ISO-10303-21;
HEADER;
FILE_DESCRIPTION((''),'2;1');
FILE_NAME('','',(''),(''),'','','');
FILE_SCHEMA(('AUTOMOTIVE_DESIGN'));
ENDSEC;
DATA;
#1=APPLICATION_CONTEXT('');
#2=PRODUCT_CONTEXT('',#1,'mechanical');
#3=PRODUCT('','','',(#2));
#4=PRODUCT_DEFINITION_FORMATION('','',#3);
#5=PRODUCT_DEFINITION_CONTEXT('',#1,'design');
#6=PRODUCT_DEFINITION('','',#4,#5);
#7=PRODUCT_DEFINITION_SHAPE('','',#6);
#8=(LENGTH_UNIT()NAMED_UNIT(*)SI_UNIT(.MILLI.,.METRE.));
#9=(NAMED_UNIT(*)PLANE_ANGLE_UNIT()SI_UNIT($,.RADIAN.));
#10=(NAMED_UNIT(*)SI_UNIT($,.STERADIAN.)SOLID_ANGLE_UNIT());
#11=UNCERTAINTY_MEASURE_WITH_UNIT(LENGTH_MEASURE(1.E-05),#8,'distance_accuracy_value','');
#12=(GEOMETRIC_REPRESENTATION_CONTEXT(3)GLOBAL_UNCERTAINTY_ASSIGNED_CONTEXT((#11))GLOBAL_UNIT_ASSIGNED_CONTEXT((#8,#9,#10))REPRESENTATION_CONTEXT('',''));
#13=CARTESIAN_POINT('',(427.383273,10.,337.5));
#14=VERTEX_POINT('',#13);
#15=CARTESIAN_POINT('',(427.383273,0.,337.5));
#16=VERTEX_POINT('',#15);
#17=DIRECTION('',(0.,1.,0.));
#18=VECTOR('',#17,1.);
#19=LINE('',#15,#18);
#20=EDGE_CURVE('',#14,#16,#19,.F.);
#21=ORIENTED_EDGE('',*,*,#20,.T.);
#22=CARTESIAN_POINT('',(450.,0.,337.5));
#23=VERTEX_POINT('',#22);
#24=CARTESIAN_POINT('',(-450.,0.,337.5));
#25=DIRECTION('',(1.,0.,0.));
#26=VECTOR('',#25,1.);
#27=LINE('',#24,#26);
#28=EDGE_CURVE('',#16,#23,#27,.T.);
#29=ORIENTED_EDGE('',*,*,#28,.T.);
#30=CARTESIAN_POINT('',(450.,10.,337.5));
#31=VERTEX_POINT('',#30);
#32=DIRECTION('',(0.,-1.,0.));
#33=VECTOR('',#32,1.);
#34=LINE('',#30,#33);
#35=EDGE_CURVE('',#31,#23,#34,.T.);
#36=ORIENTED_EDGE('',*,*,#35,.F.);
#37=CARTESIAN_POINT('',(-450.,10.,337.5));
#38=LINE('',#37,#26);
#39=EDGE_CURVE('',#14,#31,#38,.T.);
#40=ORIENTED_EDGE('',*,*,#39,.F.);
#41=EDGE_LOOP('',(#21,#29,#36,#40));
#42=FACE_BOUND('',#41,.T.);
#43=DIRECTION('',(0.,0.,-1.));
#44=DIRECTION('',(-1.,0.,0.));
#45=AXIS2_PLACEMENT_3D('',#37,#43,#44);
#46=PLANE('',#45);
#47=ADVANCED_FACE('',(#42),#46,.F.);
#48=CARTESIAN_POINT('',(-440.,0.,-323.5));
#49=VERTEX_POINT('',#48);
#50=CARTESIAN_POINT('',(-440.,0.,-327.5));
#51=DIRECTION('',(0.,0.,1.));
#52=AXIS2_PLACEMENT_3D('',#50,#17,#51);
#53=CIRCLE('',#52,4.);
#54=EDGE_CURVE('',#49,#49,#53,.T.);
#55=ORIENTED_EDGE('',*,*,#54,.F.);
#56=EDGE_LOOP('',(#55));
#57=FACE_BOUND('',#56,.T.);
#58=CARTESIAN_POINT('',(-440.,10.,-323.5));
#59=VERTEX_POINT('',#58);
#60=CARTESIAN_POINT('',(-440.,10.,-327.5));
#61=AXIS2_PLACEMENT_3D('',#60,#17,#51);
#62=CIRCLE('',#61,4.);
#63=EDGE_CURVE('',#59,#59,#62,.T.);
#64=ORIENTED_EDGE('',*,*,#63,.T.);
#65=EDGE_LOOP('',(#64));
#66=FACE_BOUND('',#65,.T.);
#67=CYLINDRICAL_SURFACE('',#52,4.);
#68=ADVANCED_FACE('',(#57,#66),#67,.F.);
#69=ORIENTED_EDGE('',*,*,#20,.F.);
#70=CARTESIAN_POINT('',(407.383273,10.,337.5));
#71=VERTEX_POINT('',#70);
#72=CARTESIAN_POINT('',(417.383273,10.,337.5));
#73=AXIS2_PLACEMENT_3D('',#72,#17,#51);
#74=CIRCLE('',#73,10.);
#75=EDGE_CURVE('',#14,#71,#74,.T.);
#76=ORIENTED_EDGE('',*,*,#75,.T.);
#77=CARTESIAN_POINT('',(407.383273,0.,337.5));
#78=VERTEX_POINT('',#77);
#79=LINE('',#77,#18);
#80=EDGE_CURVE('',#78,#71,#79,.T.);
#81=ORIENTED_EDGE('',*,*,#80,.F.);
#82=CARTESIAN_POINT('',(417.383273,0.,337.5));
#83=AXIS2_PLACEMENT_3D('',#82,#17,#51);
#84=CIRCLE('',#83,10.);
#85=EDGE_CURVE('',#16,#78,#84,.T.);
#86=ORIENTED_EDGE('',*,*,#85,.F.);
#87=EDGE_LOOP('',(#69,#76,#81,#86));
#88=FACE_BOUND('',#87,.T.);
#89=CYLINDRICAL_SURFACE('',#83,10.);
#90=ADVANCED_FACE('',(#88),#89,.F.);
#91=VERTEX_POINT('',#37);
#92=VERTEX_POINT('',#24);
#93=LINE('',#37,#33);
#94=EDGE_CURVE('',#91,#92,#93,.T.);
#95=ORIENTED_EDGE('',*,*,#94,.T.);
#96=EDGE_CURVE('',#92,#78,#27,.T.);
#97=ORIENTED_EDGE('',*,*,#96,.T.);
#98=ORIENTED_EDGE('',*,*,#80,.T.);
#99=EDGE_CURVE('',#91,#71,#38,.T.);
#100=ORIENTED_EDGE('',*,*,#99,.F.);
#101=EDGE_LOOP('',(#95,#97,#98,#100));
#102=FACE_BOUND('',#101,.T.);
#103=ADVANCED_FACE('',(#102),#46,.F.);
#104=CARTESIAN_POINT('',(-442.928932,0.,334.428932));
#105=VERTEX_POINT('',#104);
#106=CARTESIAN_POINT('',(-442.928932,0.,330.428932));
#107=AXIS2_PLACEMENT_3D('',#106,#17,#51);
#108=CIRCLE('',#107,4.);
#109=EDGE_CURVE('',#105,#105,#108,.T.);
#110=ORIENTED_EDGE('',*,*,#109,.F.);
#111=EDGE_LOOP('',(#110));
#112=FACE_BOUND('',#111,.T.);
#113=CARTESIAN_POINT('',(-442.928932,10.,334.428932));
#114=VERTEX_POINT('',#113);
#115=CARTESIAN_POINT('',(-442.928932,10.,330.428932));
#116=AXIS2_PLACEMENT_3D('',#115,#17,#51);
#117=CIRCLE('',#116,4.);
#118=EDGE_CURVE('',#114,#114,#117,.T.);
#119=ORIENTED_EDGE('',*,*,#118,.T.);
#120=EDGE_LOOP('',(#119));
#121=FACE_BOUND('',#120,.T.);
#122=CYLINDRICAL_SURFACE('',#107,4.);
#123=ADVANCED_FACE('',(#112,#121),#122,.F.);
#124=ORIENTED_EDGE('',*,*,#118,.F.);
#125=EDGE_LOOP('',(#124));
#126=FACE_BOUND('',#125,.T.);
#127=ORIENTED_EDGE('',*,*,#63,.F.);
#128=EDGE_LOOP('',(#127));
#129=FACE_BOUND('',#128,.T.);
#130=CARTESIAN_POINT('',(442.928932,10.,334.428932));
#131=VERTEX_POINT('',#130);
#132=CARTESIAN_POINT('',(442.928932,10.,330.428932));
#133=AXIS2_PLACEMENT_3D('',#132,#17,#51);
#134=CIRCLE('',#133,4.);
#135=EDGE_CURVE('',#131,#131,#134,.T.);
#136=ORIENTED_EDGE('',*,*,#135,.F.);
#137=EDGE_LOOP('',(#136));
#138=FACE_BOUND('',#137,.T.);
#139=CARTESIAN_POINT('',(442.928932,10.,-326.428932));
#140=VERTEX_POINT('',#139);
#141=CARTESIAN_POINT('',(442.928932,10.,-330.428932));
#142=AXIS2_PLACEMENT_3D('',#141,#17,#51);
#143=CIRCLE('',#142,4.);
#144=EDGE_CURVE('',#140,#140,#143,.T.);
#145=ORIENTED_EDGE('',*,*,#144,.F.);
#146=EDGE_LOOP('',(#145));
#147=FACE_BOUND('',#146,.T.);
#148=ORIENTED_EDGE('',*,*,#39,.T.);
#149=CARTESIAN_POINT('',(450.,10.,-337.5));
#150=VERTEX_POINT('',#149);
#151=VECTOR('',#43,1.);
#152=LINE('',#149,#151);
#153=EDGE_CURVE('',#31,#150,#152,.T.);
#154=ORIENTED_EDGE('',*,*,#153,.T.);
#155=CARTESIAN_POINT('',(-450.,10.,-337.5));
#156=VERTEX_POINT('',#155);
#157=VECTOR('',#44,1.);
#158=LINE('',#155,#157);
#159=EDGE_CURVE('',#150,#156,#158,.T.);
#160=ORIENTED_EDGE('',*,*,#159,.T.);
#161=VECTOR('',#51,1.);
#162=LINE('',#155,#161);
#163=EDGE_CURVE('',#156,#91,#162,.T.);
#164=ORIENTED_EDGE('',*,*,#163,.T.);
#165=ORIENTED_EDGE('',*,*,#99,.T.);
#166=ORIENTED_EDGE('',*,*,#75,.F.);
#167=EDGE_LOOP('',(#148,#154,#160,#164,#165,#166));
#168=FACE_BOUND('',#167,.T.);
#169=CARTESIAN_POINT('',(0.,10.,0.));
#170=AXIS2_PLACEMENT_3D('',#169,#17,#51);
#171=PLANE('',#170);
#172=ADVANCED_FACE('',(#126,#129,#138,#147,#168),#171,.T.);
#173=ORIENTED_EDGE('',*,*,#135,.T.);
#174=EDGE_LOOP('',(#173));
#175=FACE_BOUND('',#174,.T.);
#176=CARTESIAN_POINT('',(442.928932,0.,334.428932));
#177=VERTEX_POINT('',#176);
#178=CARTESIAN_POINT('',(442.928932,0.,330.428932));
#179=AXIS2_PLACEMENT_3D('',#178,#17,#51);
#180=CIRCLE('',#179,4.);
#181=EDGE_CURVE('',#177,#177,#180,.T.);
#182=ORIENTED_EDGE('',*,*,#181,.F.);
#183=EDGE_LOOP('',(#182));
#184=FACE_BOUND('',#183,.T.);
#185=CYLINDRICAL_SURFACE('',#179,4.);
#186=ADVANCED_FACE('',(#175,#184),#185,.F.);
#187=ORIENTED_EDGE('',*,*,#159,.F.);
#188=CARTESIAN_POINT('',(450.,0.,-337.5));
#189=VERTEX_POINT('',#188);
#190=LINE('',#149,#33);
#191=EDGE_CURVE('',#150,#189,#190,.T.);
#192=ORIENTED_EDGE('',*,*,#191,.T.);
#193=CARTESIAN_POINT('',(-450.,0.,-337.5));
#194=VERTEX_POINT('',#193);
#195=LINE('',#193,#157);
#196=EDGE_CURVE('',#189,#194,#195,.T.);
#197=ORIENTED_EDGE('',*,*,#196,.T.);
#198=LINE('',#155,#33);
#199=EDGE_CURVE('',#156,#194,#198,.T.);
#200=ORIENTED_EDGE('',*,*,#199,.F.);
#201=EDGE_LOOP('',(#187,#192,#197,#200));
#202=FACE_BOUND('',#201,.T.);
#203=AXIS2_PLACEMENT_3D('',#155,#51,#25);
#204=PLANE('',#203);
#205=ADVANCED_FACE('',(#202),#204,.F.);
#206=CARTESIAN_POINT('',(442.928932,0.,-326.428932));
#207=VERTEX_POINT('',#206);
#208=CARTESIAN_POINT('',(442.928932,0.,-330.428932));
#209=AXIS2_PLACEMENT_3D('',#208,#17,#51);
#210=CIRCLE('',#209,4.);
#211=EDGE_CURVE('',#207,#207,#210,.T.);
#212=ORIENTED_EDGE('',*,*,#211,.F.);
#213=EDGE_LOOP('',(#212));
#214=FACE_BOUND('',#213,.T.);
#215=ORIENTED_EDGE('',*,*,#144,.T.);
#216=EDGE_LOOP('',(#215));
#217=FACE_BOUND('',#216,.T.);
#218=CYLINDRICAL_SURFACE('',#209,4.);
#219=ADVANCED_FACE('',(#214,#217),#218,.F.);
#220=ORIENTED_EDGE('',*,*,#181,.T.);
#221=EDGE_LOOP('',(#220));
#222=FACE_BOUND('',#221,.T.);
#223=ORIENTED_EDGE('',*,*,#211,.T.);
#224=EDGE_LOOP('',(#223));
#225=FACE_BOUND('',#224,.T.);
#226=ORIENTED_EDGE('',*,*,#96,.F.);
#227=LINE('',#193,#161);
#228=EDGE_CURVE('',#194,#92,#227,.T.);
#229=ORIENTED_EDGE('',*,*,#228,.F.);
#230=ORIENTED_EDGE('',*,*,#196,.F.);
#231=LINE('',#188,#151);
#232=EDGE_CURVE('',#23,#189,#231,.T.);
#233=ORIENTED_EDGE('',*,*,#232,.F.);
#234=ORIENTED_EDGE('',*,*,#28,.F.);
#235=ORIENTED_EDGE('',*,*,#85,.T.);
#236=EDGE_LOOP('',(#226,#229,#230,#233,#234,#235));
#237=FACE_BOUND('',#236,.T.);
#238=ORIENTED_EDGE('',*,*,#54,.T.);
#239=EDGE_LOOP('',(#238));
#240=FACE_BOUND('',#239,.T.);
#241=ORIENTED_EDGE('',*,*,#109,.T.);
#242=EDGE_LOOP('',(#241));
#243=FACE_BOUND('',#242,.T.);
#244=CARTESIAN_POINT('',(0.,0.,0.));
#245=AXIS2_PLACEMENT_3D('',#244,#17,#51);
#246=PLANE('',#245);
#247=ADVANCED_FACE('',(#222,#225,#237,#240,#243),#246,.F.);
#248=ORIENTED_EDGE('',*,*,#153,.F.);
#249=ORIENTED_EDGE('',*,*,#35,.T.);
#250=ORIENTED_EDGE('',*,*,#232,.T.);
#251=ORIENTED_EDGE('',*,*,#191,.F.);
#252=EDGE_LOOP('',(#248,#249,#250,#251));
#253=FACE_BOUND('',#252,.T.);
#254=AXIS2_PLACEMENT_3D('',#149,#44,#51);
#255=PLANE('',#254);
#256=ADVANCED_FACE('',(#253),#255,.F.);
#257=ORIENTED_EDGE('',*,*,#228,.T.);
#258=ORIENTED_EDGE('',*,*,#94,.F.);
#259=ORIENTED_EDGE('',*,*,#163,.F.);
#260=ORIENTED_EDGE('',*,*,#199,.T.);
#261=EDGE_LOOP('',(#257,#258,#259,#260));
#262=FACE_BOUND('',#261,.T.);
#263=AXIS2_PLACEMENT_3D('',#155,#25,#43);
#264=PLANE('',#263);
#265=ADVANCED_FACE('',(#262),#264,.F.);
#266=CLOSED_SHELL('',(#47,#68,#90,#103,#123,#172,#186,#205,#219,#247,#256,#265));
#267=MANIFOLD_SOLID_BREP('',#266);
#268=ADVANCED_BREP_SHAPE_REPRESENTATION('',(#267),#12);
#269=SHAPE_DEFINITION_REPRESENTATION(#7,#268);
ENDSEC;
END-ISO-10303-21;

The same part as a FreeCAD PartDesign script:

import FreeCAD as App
import Part
import Sketcher

doc = App.newDocument("Part")
body = doc.addObject("PartDesign::Body", "Body")

sketch1 = doc.addObject("Sketcher::SketchObject", "Sketch")
body.addObject(sketch1)
sketch1.AttachmentSupport = (doc.XZ_Plane, [""])
sketch1.MapMode = "FlatFace"
sketch1.addGeometry(Part.LineSegment(App.Vector(-450, -338, 0), App.Vector(-450, 338, 0)), False)
sketch1.addGeometry(Part.LineSegment(App.Vector(-450, 338, 0), App.Vector(450, 338, 0)), False)
sketch1.addGeometry(Part.LineSegment(App.Vector(450, 338, 0), App.Vector(450, -338, 0)), False)
sketch1.addGeometry(Part.LineSegment(App.Vector(450, -338, 0), App.Vector(-450, -338, 0)), False)
sketch1.addConstraint(Sketcher.Constraint("Coincident", 0, 2, 1, 1))
sketch1.addConstraint(Sketcher.Constraint("Coincident", 1, 2, 2, 1))
sketch1.addConstraint(Sketcher.Constraint("Coincident", 2, 2, 3, 1))
sketch1.addConstraint(Sketcher.Constraint("Coincident", 3, 2, 0, 1))
sketch1.addConstraint(Sketcher.Constraint("Vertical", 0))
sketch1.addConstraint(Sketcher.Constraint("Horizontal", 1))
sketch1.addConstraint(Sketcher.Constraint("Vertical", 2))
sketch1.addConstraint(Sketcher.Constraint("Horizontal", 3))
sketch1.addConstraint(Sketcher.Constraint("Symmetric", 0, 2, 2, 2, -1, 1))
sketch1.addConstraint(Sketcher.Constraint("DistanceX", 1, 1, 1, 2, 900.0))
sketch1.addConstraint(Sketcher.Constraint("DistanceY", 0, 1, 0, 2, 675.0))
pad1 = doc.addObject("PartDesign::Pad", "Pad")
body.addObject(pad1)
pad1.Profile = sketch1
pad1.Length = 10
pad1.Reversed = True

sketch2 = doc.addObject("Sketcher::SketchObject", "Sketch001")
body.addObject(sketch2)
sketch2.AttachmentSupport = (doc.XZ_Plane, [""])
sketch2.MapMode = "FlatFace"
sketch2.AttachmentOffset = App.Placement(App.Vector(0, 0, -10), App.Rotation())
sketch2.addGeometry(Part.Circle(App.Vector(-440, -327.5, 0), App.Vector(0, 0, 1), 4), False)
sketch2.addConstraint(Sketcher.Constraint("Diameter", 0, 8.0))
sketch2.addConstraint(Sketcher.Constraint("DistanceX", 0, 3, -1, 1, 440.0))
sketch2.addConstraint(Sketcher.Constraint("DistanceY", 0, 3, -1, 1, 327.5))
pocket1 = doc.addObject("PartDesign::Pocket", "Pocket")
body.addObject(pocket1)
pocket1.Profile = sketch2
pocket1.Length = 10
pocket1.Reversed = True

sketch3 = doc.addObject("Sketcher::SketchObject", "Sketch002")
body.addObject(sketch3)
sketch3.AttachmentSupport = (doc.XZ_Plane, [""])
sketch3.MapMode = "FlatFace"
sketch3.AttachmentOffset = App.Placement(App.Vector(0, 0, -10), App.Rotation())
sketch3.addGeometry(Part.Circle(App.Vector(-442.9, 330.4, 0), App.Vector(0, 0, 1), 4), False)
sketch3.addConstraint(Sketcher.Constraint("Diameter", 0, 8.0))
sketch3.addConstraint(Sketcher.Constraint("DistanceX", 0, 3, -1, 1, 442.928932))
sketch3.addConstraint(Sketcher.Constraint("DistanceY", -1, 1, 0, 3, 330.428932))
pocket2 = doc.addObject("PartDesign::Pocket", "Pocket001")
body.addObject(pocket2)
pocket2.Profile = sketch3
pocket2.Length = 10
pocket2.Reversed = True

sketch4 = doc.addObject("Sketcher::SketchObject", "Sketch003")
body.addObject(sketch4)
sketch4.AttachmentSupport = (doc.XZ_Plane, [""])
sketch4.MapMode = "FlatFace"
sketch4.AttachmentOffset = App.Placement(App.Vector(0, 0, -10), App.Rotation())
sketch4.addGeometry(Part.Circle(App.Vector(442.9, -330.4, 0), App.Vector(0, 0, 1), 4), False)
sketch4.addConstraint(Sketcher.Constraint("Diameter", 0, 8.0))
sketch4.addConstraint(Sketcher.Constraint("DistanceX", -1, 1, 0, 3, 442.928932))
sketch4.addConstraint(Sketcher.Constraint("DistanceY", 0, 3, -1, 1, 330.428932))
pocket3 = doc.addObject("PartDesign::Pocket", "Pocket002")
body.addObject(pocket3)
pocket3.Profile = sketch4
pocket3.Length = 10
pocket3.Reversed = True

sketch5 = doc.addObject("Sketcher::SketchObject", "Sketch004")
body.addObject(sketch5)
sketch5.AttachmentSupport = (doc.XZ_Plane, [""])
sketch5.MapMode = "FlatFace"
sketch5.AttachmentOffset = App.Placement(App.Vector(0, 0, -10), App.Rotation())
sketch5.addGeometry(Part.Circle(App.Vector(442.9, 330.4, 0), App.Vector(0, 0, 1), 4), False)
sketch5.addConstraint(Sketcher.Constraint("Diameter", 0, 8.0))
sketch5.addConstraint(Sketcher.Constraint("DistanceX", -1, 1, 0, 3, 442.928932))
sketch5.addConstraint(Sketcher.Constraint("DistanceY", -1, 1, 0, 3, 330.428932))
pocket4 = doc.addObject("PartDesign::Pocket", "Pocket003")
body.addObject(pocket4)
pocket4.Profile = sketch5
pocket4.Length = 10
pocket4.Reversed = True

sketch6 = doc.addObject("Sketcher::SketchObject", "Sketch005")
body.addObject(sketch6)
sketch6.AttachmentSupport = (doc.XZ_Plane, [""])
sketch6.MapMode = "FlatFace"
sketch6.AttachmentOffset = App.Placement(App.Vector(0, 0, -10), App.Rotation())
sketch6.addGeometry(Part.Circle(App.Vector(417, 338, 0), App.Vector(0, 0, 1), 10), False)
sketch6.addConstraint(Sketcher.Constraint("Diameter", 0, 20.0))
sketch6.addConstraint(Sketcher.Constraint("DistanceY", -1, 1, 0, 3, 337.5))
sketch6.addConstraint(Sketcher.Constraint("DistanceX", -1, 1, 0, 3, 417.383273))
pocket5 = doc.addObject("PartDesign::Pocket", "Pocket004")
body.addObject(pocket5)
pocket5.Profile = sketch6
pocket5.Length = 10
pocket5.Reversed = True

doc.recompute()
